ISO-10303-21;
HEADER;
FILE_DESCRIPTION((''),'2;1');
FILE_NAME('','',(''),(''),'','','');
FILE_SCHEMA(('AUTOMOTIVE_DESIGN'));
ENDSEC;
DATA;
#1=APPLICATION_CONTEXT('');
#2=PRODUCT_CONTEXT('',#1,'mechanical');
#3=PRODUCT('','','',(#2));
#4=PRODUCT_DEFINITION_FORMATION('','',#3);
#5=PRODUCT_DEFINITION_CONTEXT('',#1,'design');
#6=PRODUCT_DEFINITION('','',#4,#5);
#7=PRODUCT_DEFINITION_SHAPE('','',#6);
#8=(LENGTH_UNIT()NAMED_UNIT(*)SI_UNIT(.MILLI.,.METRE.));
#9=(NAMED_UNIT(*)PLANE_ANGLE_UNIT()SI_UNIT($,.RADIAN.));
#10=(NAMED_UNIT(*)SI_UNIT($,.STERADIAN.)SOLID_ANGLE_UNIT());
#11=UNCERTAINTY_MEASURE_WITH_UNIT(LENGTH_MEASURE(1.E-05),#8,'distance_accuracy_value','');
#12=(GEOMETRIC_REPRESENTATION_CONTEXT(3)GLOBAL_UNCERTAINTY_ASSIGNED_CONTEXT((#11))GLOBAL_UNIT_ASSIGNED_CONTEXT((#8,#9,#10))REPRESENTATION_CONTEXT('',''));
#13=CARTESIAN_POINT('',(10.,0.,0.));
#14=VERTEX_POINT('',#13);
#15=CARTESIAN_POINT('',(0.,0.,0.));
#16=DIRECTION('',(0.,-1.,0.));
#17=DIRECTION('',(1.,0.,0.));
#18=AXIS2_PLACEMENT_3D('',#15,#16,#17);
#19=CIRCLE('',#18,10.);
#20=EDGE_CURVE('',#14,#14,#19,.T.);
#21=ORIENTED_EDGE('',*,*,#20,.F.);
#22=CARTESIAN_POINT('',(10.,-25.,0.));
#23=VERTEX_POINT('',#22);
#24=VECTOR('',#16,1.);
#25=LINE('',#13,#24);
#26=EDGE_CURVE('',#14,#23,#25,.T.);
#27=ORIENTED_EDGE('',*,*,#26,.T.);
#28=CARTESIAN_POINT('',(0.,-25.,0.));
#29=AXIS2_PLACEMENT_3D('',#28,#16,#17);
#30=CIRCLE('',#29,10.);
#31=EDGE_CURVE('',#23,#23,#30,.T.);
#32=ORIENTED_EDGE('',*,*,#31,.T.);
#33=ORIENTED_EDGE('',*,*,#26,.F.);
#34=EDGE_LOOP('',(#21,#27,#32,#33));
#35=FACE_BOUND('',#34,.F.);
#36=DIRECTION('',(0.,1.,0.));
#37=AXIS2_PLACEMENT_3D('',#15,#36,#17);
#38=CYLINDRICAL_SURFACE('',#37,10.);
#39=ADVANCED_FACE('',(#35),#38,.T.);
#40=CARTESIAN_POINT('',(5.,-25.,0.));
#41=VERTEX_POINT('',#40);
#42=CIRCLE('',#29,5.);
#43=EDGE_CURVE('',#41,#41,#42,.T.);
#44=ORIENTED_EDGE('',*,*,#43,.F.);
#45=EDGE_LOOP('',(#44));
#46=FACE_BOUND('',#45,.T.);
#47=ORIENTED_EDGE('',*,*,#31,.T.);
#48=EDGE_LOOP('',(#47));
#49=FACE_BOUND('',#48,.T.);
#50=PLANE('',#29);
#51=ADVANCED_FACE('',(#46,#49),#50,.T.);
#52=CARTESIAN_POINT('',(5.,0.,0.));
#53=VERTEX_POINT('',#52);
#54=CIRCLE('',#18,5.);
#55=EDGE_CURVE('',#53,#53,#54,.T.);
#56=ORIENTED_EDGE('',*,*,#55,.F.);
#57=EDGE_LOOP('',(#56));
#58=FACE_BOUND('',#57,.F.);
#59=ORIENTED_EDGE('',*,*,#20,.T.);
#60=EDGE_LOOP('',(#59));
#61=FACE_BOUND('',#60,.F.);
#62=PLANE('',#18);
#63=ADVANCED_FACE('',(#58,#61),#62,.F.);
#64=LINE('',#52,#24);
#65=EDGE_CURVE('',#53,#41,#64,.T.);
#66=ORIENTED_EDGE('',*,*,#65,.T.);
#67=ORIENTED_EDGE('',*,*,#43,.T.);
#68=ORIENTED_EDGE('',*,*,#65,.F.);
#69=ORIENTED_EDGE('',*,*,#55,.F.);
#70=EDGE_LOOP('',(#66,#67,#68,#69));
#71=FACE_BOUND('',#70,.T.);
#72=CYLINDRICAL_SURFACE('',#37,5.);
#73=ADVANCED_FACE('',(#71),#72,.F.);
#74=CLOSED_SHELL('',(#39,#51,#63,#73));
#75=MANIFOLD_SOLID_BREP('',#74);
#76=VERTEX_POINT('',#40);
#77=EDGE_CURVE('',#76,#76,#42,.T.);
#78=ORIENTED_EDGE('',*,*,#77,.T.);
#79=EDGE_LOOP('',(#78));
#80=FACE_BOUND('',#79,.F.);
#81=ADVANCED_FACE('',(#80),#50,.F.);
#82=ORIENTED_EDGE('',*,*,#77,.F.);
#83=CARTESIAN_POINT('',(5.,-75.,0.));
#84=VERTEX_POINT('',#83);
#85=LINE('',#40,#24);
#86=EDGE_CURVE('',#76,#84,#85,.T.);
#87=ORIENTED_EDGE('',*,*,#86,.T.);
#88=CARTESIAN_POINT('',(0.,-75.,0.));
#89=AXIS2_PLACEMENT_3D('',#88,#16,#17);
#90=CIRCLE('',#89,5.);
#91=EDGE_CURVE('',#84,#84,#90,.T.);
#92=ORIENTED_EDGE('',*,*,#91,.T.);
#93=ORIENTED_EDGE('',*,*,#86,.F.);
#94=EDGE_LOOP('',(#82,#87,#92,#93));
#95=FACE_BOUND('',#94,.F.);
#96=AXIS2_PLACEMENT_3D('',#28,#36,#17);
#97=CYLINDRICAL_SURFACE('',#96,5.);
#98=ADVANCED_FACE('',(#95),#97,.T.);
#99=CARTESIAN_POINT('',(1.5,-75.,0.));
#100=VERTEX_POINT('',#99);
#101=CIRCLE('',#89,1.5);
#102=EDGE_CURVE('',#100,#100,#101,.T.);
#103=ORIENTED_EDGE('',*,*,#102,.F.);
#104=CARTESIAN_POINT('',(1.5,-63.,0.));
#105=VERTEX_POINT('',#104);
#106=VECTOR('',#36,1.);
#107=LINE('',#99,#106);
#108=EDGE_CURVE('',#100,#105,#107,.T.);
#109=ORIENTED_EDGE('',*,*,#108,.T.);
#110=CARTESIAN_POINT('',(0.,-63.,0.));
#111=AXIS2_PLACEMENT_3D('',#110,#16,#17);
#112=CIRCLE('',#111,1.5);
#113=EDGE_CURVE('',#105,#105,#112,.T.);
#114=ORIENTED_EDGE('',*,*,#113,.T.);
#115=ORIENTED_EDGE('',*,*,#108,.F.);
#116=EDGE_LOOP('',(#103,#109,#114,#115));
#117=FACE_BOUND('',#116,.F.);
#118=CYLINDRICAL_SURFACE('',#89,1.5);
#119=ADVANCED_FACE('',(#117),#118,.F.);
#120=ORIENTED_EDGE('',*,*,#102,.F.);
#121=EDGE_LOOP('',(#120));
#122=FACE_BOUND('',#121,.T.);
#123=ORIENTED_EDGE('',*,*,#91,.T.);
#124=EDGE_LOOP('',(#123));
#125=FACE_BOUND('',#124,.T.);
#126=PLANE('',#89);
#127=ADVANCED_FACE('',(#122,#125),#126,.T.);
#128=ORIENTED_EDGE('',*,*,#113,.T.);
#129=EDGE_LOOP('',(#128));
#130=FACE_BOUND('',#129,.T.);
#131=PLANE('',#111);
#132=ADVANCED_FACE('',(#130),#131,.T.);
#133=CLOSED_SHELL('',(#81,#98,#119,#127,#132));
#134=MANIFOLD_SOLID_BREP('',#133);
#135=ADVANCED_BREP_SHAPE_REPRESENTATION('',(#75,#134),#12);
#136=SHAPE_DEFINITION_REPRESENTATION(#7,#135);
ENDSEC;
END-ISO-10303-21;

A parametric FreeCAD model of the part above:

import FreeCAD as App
import Part
import Sketcher

doc = App.newDocument("Part")
params = doc.addObject("Spreadsheet::Sheet", "Params")
for row, (alias, value) in enumerate([
    ("sketch1_diameter", "20 mm"),
    ("sketch1_diameter2", "10 mm"),
    ("pad1_length", "25 mm"),
    ("sketch2_diameter", "10 mm"),
    ("pad2_length", "50 mm"),
    ("sketch3_diameter", "3 mm"),
    ("pocket1_length", "12 mm"),
], start=1):
    params.set(f"A{row}", alias)
    params.set(f"B{row}", "=" + value)
    params.setAlias(f"B{row}", alias)

body = doc.addObject("PartDesign::Body", "Body")

# Sketch on XZ plane
sketch1 = body.newObject("Sketcher::SketchObject", "Sketch")
sketch1.AttachmentSupport = (doc.getObject("XZ_Plane"), [""])
sketch1.MapMode = "FlatFace"
sketch1.addGeometry(Part.Circle(App.Vector(0, 0, 0), App.Vector(0, 0, 1), 10), False)
sketch1.addGeometry(Part.Circle(App.Vector(0, 0, 0), App.Vector(0, 0, 1), 5), False)
sketch1.addConstraint(Sketcher.Constraint("Coincident", 0, 3, -1, 1))
sketch1.addConstraint(Sketcher.Constraint("Coincident", 1, 3, -1, 1))
sketch1.addConstraint(Sketcher.Constraint("Diameter", 0, 20.0))
sketch1.addConstraint(Sketcher.Constraint("Diameter", 1, 10.0))
sketch1.setExpression("Constraints[2]", "Params.sketch1_diameter")
sketch1.setExpression("Constraints[3]", "Params.sketch1_diameter2")
pad1 = body.newObject("PartDesign::Pad", "Pad")
pad1.Profile = sketch1
pad1.setExpression("Length", "Params.pad1_length")
body2 = doc.addObject("PartDesign::Body", "Body001")

# Sketch on XZ plane
sketch2 = body2.newObject("Sketcher::SketchObject", "Sketch001")
sketch2.AttachmentSupport = (doc.getObject("XZ_Plane001"), [""])
sketch2.MapMode = "FlatFace"
sketch2.AttachmentOffset = App.Placement(App.Vector(0, 0, 25), App.Rotation())
sketch2.addGeometry(Part.Circle(App.Vector(0, 0, 0), App.Vector(0, 0, 1), 5), False)
sketch2.addConstraint(Sketcher.Constraint("Coincident", 0, 3, -1, 1))
sketch2.addConstraint(Sketcher.Constraint("Diameter", 0, 10.0))
sketch2.setExpression("Constraints[1]", "Params.sketch2_diameter")
pad2 = body2.newObject("PartDesign::Pad", "Pad001")
pad2.Profile = sketch2
pad2.setExpression("Length", "Params.pad2_length")

# Sketch on XZ plane
sketch3 = body2.newObject("Sketcher::SketchObject", "Sketch002")
sketch3.AttachmentSupport = (doc.getObject("XZ_Plane001"), [""])
sketch3.MapMode = "FlatFace"
sketch3.AttachmentOffset = App.Placement(App.Vector(0, 0, 75), App.Rotation())
sketch3.addGeometry(Part.Circle(App.Vector(0, 0, 0), App.Vector(0, 0, 1), 1.5), False)
sketch3.addConstraint(Sketcher.Constraint("Coincident", 0, 3, -1, 1))
sketch3.addConstraint(Sketcher.Constraint("Diameter", 0, 3.0))
sketch3.setExpression("Constraints[1]", "Params.sketch3_diameter")
pocket1 = body2.newObject("PartDesign::Pocket", "Pocket")
pocket1.Profile = sketch3
pocket1.setExpression("Length", "Params.pocket1_length")

doc.recompute()
